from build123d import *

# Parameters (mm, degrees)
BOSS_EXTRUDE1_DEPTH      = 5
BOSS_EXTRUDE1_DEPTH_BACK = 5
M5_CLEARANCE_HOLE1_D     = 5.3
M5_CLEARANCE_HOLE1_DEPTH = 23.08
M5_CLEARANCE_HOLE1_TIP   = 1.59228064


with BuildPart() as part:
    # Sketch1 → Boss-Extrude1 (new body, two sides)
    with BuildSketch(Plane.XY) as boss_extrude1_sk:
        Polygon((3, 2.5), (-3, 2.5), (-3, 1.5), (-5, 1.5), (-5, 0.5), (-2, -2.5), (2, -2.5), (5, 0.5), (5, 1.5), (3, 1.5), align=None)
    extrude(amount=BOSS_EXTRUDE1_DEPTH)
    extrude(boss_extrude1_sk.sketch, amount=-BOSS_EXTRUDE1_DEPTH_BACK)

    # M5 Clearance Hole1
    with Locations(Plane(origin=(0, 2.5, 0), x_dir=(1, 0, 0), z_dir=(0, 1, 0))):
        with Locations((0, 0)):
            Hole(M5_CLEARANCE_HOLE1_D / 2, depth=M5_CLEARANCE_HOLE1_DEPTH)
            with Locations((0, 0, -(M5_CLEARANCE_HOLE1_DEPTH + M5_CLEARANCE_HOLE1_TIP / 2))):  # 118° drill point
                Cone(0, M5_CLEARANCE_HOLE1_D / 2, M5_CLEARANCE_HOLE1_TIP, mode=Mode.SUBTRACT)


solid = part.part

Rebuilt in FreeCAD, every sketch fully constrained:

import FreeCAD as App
import Part
import Sketcher
from FreeCAD import Vector
Q = App.Units.Quantity


def add_polygon(sketch, points):
    """Adds a closed chain of lines whose ends are joined by coincident constraints."""
    first, n = sketch.GeometryCount, len(points)
    for a, b in zip(points, points[1:] + points[:1]):
        sketch.addGeometry(Part.LineSegment(App.Vector(*a, 0), App.Vector(*b, 0)), False)
    for i in range(n):
        sketch.addConstraint(Sketcher.Constraint("Coincident", first + i, 2, first + (i + 1) % n, 1))

doc = App.newDocument("Part")
params = doc.addObject("Spreadsheet::Sheet", "Params")
for row, (alias, value) in enumerate([
    ("sketch1_width", "6 mm"),
    ("sketch1_width2", "2 mm"),
    ("sketch1_width3", "4 mm"),
    ("sketch1_height", "1 mm"),
    ("pad1_length", "5 mm"),
    ("pad1_length2", "5 mm"),
    ("sketch2_diameter", "5.3 mm"),
    ("hole_diameter", "5.3 mm"),
    ("hole_depth", "23.08 mm"),
], start=1):
    params.set(f"A{row}", alias)
    params.set(f"B{row}", "=" + value)
    params.setAlias(f"B{row}", alias)

body = doc.addObject("PartDesign::Body", "Body")

sketch1 = body.newObject("Sketcher::SketchObject", "Sketch")
sketch1.AttachmentSupport = (doc.getObject("XY_Plane"), [""])
sketch1.MapMode = "FlatFace"
add_polygon(sketch1, [(3, 2.5), (-3, 2.5), (-3, 1.5), (-5, 1.5), (-5, 0.5), (-2, -2.5), (2, -2.5), (5, 0.5), (5, 1.5), (3, 1.5)])
sketch1.addConstraint(Sketcher.Constraint("Horizontal", 0))
sketch1.addConstraint(Sketcher.Constraint("Vertical", 1))
sketch1.addConstraint(Sketcher.Constraint("Horizontal", 2))
sketch1.addConstraint(Sketcher.Constraint("Vertical", 3))
sketch1.addConstraint(Sketcher.Constraint("Horizontal", 5))
sketch1.addConstraint(Sketcher.Constraint("Vertical", 7))
sketch1.addConstraint(Sketcher.Constraint("Horizontal", 8))
sketch1.addConstraint(Sketcher.Constraint("Vertical", 9))
sketch1.addConstraint(Sketcher.Constraint("Symmetric", 3, 2, 6, 2, -2))
sketch1.addConstraint(Sketcher.Constraint("Symmetric", 1, 2, 8, 2, -2))
sketch1.addConstraint(Sketcher.Constraint("Perpendicular", 4, 6))
sketch1.addConstraint(Sketcher.Constraint("Equal", 1, 3))
sketch1.addConstraint(Sketcher.Constraint("Equal", 4, 6))
sketch1.addConstraint(Sketcher.Constraint("DistanceX", 0, 2, 0, 1, Q("6 mm")))
sketch1.addConstraint(Sketcher.Constraint("DistanceX", 2, 2, 2, 1, Q("2 mm")))
sketch1.addConstraint(Sketcher.Constraint("DistanceX", 5, 1, 5, 2, Q("4 mm")))
sketch1.addConstraint(Sketcher.Constraint("DistanceY", 1, 2, 1, 1, Q("1 mm")))
sketch1.addConstraint(Sketcher.Constraint("DistanceY", -1, 1, 0, 2, Q("2.5 mm")))
sketch1.setExpression("Constraints[23]", "Params.sketch1_width")
sketch1.setExpression("Constraints[24]", "Params.sketch1_width2")
sketch1.setExpression("Constraints[25]", "Params.sketch1_width3")
sketch1.setExpression("Constraints[26]", "Params.sketch1_height")
pad1 = body.newObject("PartDesign::Pad", "Pad")
pad1.Profile = sketch1
pad1.Type = "TwoLengths"
pad1.setExpression("Length", "Params.pad1_length")
pad1.setExpression("Length2", "Params.pad1_length2")

sketch2 = body.newObject("Sketcher::SketchObject", "Sketch001")
sketch2.AttachmentSupport = (doc.getObject("XZ_Plane"), [""])
sketch2.MapMode = "FlatFace"
sketch2.AttachmentOffset = App.Placement(Vector(0, 0, -2.5), App.Rotation())
sketch2.addGeometry(Part.Circle(Vector(0, 0, 0), Vector(0, 0, 1), 2.6), False)
sketch2.addConstraint(Sketcher.Constraint("Coincident", 0, 3, -1, 1))
sketch2.addConstraint(Sketcher.Constraint("Diameter", 0, Q("5.3 mm")))
sketch2.setExpression("Constraints[1]", "Params.sketch2_diameter")
doc.recompute()
hole = body.newObject("PartDesign::Hole", "Hole")
hole.Profile = sketch2
hole.ThreadType = "None"
hole.setExpression("Diameter", "Params.hole_diameter")
hole.DepthType = "Dimension"
hole.setExpression("Depth", "Params.hole_depth")
hole.DrillPoint = "Angled"
hole.DrillPointAngle = 118
hole.Reversed = True

doc.recompute()
